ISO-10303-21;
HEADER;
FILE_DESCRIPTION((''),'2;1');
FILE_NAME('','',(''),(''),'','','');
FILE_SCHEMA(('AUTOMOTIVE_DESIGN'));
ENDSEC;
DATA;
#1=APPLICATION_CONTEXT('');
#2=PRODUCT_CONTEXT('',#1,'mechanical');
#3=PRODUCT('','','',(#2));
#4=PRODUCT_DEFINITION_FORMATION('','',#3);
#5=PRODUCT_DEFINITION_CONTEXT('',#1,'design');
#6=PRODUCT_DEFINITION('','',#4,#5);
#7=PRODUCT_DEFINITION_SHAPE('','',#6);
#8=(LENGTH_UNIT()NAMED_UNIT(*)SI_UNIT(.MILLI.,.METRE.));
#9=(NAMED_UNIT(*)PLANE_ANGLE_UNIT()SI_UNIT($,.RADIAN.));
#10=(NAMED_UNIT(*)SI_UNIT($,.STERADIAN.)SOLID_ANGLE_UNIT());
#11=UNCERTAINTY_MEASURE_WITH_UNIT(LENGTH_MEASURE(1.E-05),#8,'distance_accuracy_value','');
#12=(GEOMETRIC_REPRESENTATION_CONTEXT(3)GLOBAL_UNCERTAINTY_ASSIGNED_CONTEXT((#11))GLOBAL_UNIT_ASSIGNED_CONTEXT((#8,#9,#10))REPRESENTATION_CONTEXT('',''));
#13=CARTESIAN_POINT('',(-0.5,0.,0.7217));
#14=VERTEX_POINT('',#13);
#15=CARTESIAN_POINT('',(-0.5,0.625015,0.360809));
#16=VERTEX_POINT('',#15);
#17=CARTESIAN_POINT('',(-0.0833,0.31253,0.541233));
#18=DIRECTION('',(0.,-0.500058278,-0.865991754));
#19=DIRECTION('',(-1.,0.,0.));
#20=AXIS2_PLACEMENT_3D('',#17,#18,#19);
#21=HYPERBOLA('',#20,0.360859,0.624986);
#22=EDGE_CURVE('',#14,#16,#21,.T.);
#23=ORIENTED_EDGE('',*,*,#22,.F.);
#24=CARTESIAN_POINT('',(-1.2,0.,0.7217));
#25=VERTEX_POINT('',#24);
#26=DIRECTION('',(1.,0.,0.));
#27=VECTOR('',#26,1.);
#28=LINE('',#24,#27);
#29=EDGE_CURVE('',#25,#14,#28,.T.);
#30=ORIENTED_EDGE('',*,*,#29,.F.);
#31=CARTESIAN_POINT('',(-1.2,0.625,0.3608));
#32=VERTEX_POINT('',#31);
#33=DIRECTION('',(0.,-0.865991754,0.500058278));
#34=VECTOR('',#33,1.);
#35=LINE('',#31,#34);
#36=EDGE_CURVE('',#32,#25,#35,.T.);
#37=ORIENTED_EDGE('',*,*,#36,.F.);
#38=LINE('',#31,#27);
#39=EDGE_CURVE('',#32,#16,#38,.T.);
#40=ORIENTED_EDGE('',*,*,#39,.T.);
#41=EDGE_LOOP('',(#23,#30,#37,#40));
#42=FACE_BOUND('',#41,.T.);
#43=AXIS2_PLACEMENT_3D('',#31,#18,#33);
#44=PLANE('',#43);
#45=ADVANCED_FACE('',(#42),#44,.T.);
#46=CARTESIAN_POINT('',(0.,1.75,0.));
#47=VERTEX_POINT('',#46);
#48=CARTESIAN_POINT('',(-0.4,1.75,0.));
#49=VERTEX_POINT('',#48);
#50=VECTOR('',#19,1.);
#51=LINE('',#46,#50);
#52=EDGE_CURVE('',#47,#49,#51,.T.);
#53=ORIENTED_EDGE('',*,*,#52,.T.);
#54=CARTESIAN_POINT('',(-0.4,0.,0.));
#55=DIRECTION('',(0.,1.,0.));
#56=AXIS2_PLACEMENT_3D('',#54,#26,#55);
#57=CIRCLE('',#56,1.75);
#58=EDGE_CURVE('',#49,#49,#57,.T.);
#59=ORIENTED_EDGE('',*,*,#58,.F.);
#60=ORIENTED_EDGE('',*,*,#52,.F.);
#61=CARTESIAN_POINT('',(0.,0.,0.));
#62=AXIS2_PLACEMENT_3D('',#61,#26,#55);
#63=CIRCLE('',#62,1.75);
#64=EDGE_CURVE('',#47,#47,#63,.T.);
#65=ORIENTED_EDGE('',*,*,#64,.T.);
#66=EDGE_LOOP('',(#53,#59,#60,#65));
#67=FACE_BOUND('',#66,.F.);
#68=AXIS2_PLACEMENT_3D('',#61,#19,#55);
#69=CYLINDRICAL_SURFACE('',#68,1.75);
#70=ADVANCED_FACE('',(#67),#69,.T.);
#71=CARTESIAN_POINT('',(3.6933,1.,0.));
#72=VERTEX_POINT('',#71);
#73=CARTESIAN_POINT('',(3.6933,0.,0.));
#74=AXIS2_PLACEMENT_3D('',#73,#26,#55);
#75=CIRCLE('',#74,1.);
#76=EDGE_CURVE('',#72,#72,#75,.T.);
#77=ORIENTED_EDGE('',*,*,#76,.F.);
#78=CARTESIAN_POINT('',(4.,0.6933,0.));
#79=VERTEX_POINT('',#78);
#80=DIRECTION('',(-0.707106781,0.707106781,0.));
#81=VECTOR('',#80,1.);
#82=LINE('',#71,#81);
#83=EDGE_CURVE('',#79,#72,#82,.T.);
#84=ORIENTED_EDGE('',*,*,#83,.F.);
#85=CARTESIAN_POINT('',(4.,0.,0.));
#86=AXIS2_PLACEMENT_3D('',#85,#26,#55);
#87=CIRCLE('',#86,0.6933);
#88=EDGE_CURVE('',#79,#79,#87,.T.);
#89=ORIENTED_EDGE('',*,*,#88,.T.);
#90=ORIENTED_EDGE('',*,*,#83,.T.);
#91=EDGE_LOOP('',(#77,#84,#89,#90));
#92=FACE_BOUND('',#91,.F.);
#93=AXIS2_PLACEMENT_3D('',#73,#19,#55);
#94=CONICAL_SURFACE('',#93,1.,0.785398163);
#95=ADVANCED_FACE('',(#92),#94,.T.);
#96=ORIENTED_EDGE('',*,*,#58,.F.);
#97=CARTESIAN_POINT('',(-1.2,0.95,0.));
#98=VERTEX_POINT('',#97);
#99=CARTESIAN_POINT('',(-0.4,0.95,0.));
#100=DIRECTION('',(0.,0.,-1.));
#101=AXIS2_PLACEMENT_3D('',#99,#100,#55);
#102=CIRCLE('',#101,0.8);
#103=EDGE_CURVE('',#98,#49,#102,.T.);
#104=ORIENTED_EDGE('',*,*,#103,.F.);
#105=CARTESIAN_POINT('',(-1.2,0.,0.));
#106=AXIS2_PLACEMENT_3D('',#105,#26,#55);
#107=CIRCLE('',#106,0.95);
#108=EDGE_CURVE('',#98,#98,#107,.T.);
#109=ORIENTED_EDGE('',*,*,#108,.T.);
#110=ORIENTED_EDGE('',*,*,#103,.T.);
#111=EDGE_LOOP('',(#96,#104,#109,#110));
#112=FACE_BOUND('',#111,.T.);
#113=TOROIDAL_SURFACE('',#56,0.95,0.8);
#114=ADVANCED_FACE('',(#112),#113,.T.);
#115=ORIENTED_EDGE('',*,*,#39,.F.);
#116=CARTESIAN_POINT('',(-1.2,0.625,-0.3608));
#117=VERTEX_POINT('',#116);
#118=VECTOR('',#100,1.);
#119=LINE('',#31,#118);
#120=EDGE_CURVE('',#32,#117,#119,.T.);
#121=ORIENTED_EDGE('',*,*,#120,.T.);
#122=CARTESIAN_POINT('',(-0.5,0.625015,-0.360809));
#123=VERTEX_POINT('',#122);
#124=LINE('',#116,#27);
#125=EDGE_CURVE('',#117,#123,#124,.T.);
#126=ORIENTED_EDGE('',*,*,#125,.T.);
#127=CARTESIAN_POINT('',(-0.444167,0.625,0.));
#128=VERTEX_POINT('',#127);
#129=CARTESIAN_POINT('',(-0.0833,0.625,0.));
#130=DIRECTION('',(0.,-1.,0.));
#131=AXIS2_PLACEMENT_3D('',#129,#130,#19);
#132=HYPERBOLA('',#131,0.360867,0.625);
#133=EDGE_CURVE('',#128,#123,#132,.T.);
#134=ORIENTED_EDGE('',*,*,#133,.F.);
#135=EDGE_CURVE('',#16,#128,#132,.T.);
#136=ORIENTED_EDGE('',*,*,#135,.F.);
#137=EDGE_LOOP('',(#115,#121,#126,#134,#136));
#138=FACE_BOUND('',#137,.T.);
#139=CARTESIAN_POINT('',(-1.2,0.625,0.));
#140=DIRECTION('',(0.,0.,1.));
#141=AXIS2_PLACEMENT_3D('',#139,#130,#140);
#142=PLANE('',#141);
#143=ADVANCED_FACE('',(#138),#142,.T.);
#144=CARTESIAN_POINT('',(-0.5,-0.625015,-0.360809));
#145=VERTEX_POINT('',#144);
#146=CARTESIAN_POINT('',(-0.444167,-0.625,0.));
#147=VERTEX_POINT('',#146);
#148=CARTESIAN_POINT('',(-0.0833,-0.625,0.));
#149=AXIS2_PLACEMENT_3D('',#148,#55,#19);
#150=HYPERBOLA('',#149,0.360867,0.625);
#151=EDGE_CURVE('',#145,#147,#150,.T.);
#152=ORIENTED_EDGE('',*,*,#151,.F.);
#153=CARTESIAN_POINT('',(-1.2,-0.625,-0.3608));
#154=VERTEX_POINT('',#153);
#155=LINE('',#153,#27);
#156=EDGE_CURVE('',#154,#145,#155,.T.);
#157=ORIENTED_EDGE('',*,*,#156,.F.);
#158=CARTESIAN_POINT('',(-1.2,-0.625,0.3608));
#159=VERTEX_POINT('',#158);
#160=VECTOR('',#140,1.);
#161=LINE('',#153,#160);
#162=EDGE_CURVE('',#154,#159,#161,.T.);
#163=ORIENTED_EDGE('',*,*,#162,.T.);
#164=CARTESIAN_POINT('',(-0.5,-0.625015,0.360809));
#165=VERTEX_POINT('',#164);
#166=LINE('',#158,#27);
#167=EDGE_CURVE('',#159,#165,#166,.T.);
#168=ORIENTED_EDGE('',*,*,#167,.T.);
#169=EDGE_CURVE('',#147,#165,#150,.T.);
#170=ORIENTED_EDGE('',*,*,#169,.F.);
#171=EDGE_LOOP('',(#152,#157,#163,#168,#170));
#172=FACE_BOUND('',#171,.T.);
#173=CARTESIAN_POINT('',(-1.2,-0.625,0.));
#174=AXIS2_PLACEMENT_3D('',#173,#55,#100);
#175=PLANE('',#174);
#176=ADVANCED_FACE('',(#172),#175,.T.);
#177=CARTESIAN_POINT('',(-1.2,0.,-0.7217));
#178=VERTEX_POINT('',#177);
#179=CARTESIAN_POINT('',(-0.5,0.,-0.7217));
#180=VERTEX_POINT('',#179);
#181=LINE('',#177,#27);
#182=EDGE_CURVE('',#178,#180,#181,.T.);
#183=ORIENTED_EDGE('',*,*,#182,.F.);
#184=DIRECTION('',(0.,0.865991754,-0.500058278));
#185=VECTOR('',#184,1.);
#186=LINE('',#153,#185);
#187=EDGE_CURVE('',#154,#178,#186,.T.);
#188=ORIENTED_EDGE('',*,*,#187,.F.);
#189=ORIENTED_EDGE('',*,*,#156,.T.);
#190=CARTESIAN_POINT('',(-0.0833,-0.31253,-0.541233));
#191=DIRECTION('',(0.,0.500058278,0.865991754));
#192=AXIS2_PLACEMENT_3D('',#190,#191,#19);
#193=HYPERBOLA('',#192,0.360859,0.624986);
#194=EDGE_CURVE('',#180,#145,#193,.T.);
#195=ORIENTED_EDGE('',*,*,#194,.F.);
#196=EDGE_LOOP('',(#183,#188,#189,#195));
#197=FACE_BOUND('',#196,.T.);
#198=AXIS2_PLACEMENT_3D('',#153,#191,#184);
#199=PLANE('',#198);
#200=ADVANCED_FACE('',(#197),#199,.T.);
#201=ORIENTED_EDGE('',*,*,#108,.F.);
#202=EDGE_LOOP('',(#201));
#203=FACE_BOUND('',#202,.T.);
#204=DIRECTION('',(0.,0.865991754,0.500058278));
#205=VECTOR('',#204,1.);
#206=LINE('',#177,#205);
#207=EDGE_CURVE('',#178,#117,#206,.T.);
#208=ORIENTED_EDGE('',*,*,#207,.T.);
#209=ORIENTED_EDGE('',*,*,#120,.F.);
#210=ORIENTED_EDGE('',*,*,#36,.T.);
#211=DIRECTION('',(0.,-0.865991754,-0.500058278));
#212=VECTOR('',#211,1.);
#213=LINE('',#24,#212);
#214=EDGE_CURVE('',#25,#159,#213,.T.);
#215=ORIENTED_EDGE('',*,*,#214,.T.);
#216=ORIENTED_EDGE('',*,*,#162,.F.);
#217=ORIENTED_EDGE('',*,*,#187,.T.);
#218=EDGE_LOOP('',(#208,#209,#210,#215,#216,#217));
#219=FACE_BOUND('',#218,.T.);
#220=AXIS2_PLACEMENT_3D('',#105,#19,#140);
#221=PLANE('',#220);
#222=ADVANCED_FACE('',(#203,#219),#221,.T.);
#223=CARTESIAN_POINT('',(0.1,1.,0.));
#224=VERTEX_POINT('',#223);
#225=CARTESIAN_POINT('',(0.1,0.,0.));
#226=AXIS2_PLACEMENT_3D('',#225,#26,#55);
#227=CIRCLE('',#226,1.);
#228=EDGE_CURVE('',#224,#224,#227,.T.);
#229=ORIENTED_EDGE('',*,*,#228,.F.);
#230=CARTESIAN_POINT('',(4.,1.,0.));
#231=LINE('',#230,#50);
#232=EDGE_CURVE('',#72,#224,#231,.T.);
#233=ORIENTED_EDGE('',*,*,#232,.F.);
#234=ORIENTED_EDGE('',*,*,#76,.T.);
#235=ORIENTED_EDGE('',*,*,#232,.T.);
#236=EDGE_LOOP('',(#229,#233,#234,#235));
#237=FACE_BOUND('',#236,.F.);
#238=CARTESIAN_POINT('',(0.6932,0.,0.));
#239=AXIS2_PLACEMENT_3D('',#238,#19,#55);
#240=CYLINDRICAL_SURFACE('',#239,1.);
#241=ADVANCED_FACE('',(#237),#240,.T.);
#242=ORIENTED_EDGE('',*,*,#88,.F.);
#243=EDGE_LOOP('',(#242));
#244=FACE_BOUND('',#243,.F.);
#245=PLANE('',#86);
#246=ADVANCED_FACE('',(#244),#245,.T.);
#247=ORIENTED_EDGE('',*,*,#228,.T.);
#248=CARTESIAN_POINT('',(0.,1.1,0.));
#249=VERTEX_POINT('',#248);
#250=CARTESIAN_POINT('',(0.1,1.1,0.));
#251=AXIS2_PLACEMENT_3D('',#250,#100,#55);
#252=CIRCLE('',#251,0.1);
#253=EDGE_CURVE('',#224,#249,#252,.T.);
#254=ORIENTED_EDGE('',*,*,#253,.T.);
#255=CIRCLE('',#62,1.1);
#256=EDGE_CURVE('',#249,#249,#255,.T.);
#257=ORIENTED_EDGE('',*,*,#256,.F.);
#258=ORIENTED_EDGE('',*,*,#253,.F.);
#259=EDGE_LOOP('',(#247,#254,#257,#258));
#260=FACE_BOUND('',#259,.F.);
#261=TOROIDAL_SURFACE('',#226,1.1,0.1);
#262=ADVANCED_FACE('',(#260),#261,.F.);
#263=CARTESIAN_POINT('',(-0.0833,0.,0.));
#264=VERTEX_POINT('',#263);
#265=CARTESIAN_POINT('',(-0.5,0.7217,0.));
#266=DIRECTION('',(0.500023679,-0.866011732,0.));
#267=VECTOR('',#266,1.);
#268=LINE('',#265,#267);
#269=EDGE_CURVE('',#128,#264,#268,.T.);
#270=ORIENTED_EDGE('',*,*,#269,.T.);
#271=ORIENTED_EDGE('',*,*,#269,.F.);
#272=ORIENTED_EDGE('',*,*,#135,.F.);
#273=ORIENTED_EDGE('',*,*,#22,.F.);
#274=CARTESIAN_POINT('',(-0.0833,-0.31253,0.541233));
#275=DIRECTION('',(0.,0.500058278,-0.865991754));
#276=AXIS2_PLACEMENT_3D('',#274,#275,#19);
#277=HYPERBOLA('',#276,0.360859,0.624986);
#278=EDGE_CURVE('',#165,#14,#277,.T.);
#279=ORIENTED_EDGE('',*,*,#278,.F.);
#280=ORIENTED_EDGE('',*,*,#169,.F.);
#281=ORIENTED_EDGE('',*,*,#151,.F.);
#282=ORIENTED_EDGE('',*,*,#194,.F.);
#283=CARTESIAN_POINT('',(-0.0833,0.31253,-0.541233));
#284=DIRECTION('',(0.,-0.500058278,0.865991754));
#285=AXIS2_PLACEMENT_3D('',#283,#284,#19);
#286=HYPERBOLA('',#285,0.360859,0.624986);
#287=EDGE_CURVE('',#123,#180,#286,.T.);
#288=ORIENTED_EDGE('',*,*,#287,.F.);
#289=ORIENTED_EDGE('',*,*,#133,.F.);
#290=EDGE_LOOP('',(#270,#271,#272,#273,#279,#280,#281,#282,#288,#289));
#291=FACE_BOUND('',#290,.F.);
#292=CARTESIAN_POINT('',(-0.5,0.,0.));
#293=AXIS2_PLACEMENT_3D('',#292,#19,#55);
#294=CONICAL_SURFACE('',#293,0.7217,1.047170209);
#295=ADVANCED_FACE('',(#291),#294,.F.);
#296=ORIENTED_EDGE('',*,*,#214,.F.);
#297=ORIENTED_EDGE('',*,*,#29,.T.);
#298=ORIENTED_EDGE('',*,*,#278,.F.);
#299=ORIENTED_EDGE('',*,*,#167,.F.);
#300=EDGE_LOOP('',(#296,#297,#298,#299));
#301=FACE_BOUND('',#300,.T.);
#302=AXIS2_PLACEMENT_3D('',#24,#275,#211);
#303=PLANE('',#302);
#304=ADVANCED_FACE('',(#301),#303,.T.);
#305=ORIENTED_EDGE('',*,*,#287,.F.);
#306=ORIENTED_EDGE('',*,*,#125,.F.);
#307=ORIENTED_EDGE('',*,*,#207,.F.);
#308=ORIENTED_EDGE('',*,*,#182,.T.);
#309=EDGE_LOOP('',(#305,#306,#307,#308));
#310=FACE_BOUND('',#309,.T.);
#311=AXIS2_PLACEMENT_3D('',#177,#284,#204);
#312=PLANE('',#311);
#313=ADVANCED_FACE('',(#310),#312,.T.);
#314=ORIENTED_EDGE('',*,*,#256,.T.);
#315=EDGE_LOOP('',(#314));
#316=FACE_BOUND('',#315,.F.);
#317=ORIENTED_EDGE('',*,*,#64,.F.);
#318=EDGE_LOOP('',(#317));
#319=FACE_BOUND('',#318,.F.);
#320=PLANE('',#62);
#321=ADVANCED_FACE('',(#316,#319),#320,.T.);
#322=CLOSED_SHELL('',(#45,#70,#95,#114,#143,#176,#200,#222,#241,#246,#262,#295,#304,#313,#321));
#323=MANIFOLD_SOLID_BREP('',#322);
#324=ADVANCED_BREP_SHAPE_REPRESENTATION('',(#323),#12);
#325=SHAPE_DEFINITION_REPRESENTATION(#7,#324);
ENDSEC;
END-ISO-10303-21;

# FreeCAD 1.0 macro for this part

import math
import FreeCAD as App
import Part
import Sketcher

V = App.Vector
Q = App.Units.Quantity


def edges_at(feature, points):
    """Names of the edges that pass closest to the given points."""
    edges = feature.Shape.Edges
    near = lambda p: min(range(len(edges)), key=lambda i: edges[i].distToShape(Part.Vertex(*p))[0])
    return sorted({f"Edge{near(p) + 1}" for p in points})


def add_polygon(sketch, points):
    """Adds a closed chain of lines whose ends are joined by coincident constraints."""
    first, n = sketch.GeometryCount, len(points)
    for a, b in zip(points, points[1:] + points[:1]):
        sketch.addGeometry(Part.LineSegment(App.Vector(*a, 0), App.Vector(*b, 0)), False)
    for i in range(n):
        sketch.addConstraint(Sketcher.Constraint("Coincident", first + i, 2, first + (i + 1) % n, 1))

doc = App.newDocument("Part")
body = doc.addObject("PartDesign::Body", "Body")

sketch1 = body.newObject("Sketcher::SketchObject", "Sketch")
sketch1.AttachmentSupport = (doc.getObject("XY_Plane"), [""])
sketch1.MapMode = "FlatFace"
add_polygon(sketch1, [(-0.5, 0.7), (-0.1, 0), (4, 0), (4, 1), (0, 1), (0, 1.8), (-1.2, 1.8), (-1.2, 0.7)])
sketch1.addConstraint(Sketcher.Constraint("Horizontal", 1))
sketch1.addConstraint(Sketcher.Constraint("Vertical", 2))
sketch1.addConstraint(Sketcher.Constraint("Horizontal", 3))
sketch1.addConstraint(Sketcher.Constraint("Vertical", 4))
sketch1.addConstraint(Sketcher.Constraint("Horizontal", 5))
sketch1.addConstraint(Sketcher.Constraint("Vertical", 6))
sketch1.addConstraint(Sketcher.Constraint("Horizontal", 7))
sketch1.addConstraint(Sketcher.Constraint("PointOnObject", 0, 2, -1))
sketch1.addConstraint(Sketcher.Constraint("PointOnObject", 3, 2, -2))
sketch1.addConstraint(Sketcher.Constraint("DistanceX", 3, 2, 3, 1, Q("4 mm")))
sketch1.addConstraint(Sketcher.Constraint("DistanceX", 5, 2, 5, 1, Q("1.2 mm")))
sketch1.addConstraint(Sketcher.Constraint("DistanceX", 7, 1, 7, 2, Q("0.7 mm")))
sketch1.addConstraint(Sketcher.Constraint("DistanceY", 2, 1, 2, 2, Q("1 mm")))
sketch1.addConstraint(Sketcher.Constraint("DistanceY", 4, 1, 4, 2, Q("0.75 mm")))
sketch1.addConstraint(Sketcher.Constraint("DistanceX", 1, 1, 1, 2, Q("4.0833 mm")))
sketch1.addConstraint(Sketcher.Constraint("DistanceY", 6, 2, 6, 1, Q("1.0283 mm")))
revolution = body.newObject("PartDesign::Revolution", "Revolution")
revolution.Profile = sketch1
revolution.ReferenceAxis = (sketch1, ["H_Axis"])
revolution.Angle = 360

sketch2 = body.newObject("Sketcher::SketchObject", "Sketch001")
sketch2.AttachmentSupport = (doc.getObject("YZ_Plane"), [""])
sketch2.MapMode = "FlatFace"
sketch2.AttachmentOffset = App.Placement(V(0, 0, -1.2), App.Rotation())
sketch2.addGeometry(Part.LineSegment(V(0.6, 0.4, 0), V(0, 0.7, 0)), False)
sketch2.addGeometry(Part.ArcOfCircle(Part.Circle(V(0, 0, 0), V(0, 0, 1), 0.7), math.radians(30), math.radians(90)), False)
sketch2.addGeometry(Part.ArcOfCircle(Part.Circle(V(0, 0, 0), V(0, 0, 1), 0.7), math.radians(90), math.radians(150)), False)
sketch2.addGeometry(Part.LineSegment(V(0, 0.7, 0), V(-0.6, 0.4, 0)), False)
sketch2.addGeometry(Part.ArcOfCircle(Part.Circle(V(0, 0, 0), V(0, 0, 1), 0.7), math.radians(-30), math.radians(30)), False)
sketch2.addGeometry(Part.LineSegment(V(0.6, 0.4, 0), V(0.6, -0.4, 0)), False)
sketch2.addGeometry(Part.LineSegment(V(-0.6, 0.4, 0), V(-0.6, -0.4, 0)), False)
sketch2.addGeometry(Part.ArcOfCircle(Part.Circle(V(0, 0, 0), V(0, 0, 1), 0.7), math.radians(150), math.radians(210)), False)
sketch2.addGeometry(Part.LineSegment(V(-0.6, -0.4, 0), V(0, -0.7, 0)), False)
sketch2.addGeometry(Part.ArcOfCircle(Part.Circle(V(0, 0, 0), V(0, 0, 1), 0.7), math.radians(-150), math.radians(-90)), False)
sketch2.addGeometry(Part.ArcOfCircle(Part.Circle(V(0, 0, 0), V(0, 0, 1), 0.7), math.radians(-90), math.radians(-30)), False)
sketch2.addGeometry(Part.LineSegment(V(0, -0.7, 0), V(0.6, -0.4, 0)), False)
sketch2.addConstraint(Sketcher.Constraint("Coincident", 0, 1, 1, 1))
sketch2.addConstraint(Sketcher.Constraint("Coincident", 1, 2, 0, 2))
sketch2.addConstraint(Sketcher.Constraint("Coincident", 2, 1, 3, 1))
sketch2.addConstraint(Sketcher.Constraint("Coincident", 3, 2, 2, 2))
sketch2.addConstraint(Sketcher.Constraint("Coincident", 4, 1, 5, 2))
sketch2.addConstraint(Sketcher.Constraint("Coincident", 5, 1, 4, 2))
sketch2.addConstraint(Sketcher.Constraint("Coincident", 6, 1, 7, 1))
sketch2.addConstraint(Sketcher.Constraint("Coincident", 7, 2, 6, 2))
sketch2.addConstraint(Sketcher.Constraint("Coincident", 8, 1, 9, 1))
sketch2.addConstraint(Sketcher.Constraint("Coincident", 9, 2, 8, 2))
sketch2.addConstraint(Sketcher.Constraint("Coincident", 10, 1, 11, 1))
sketch2.addConstraint(Sketcher.Constraint("Coincident", 11, 2, 10, 2))
sketch2.addConstraint(Sketcher.Constraint("Vertical", 5))
sketch2.addConstraint(Sketcher.Constraint("Vertical", 6))
sketch2.addConstraint(Sketcher.Constraint("Coincident", 1, 3, -1, 1))
sketch2.addConstraint(Sketcher.Constraint("Coincident", 2, 3, -1, 1))
sketch2.addConstraint(Sketcher.Constraint("Coincident", 4, 3, -1, 1))
sketch2.addConstraint(Sketcher.Constraint("Coincident", 7, 3, -1, 1))
sketch2.addConstraint(Sketcher.Constraint("Coincident", 9, 3, -1, 1))
sketch2.addConstraint(Sketcher.Constraint("Coincident", 10, 3, -1, 1))
sketch2.addConstraint(Sketcher.Constraint("Coincident", 2, 1, 1, 2))
sketch2.addConstraint(Sketcher.Constraint("Coincident", 5, 1, 0, 1))
sketch2.addConstraint(Sketcher.Constraint("Coincident", 6, 1, 3, 2))
sketch2.addConstraint(Sketcher.Constraint("Coincident", 8, 1, 7, 2))
sketch2.addConstraint(Sketcher.Constraint("Coincident", 10, 1, 9, 2))
sketch2.addConstraint(Sketcher.Constraint("PointOnObject", 1, 2, -2))
sketch2.addConstraint(Sketcher.Constraint("PointOnObject", 9, 2, -2))
sketch2.addConstraint(Sketcher.Constraint("Parallel", 0, 8))
sketch2.addConstraint(Sketcher.Constraint("Parallel", 3, 11))
sketch2.addConstraint(Sketcher.Constraint("Radius", 1, Q("0.7217 mm")))
sketch2.addConstraint(Sketcher.Constraint("DistanceY", 5, 2, 5, 1, Q("0.7216 mm")))
pad1 = body.newObject("PartDesign::Pad", "Pad")
pad1.Profile = sketch2
pad1.Type = "UpToFirst"
doc.recompute()

fillet = body.newObject("PartDesign::Fillet", "Fillet")
fillet.Base = (pad1, edges_at(pad1, [(-1.2, -1.75, 0)]))
fillet.Radius = 0.8
doc.recompute()

chamfer = body.newObject("PartDesign::Chamfer", "Chamfer")
chamfer.Base = (fillet, edges_at(fillet, [(4, -1, 0)]))
chamfer.ChamferType = "Two distances"
chamfer.Size = 0.3067
chamfer.Size2 = 0.3067
doc.recompute()

fillet2 = body.newObject("PartDesign::Fillet", "Fillet001")
fillet2.Base = (chamfer, edges_at(chamfer, [(0, -1, 0)]))
fillet2.Radius = 0.1

doc.recompute()
